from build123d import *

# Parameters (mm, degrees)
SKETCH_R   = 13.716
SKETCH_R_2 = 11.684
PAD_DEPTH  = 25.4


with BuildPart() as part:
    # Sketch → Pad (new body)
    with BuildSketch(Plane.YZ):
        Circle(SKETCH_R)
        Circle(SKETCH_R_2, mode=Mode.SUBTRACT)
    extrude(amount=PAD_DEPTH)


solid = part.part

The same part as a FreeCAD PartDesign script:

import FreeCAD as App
import Part
import Sketcher
Q = App.Units.Quantity

doc = App.newDocument("Part")
body = doc.addObject("PartDesign::Body", "Body")

# Sketch on YZ plane
sketch1 = body.newObject("Sketcher::SketchObject", "Sketch")
sketch1.AttachmentSupport = (doc.getObject("YZ_Plane"), [""])
sketch1.MapMode = "FlatFace"
sketch1.addGeometry([
    Part.Circle(App.Vector(0, 0, 0), App.Vector(0, 0, 1), 14),
    Part.Circle(App.Vector(0, 0, 0), App.Vector(0, 0, 1), 12),
], False)
sketch1.addConstraint([
    Sketcher.Constraint("Coincident", 0, 3, -1, 1),
    Sketcher.Constraint("Coincident", 1, 3, -1, 1),
    Sketcher.Constraint("Diameter", 0, Q("1.08 in")),
    Sketcher.Constraint("Diameter", 1, Q("0.92 in")),
])
pad1 = body.newObject("PartDesign::Pad", "Pad")
pad1.Profile = sketch1
pad1.Length = Q("1 in")

doc.recompute()
